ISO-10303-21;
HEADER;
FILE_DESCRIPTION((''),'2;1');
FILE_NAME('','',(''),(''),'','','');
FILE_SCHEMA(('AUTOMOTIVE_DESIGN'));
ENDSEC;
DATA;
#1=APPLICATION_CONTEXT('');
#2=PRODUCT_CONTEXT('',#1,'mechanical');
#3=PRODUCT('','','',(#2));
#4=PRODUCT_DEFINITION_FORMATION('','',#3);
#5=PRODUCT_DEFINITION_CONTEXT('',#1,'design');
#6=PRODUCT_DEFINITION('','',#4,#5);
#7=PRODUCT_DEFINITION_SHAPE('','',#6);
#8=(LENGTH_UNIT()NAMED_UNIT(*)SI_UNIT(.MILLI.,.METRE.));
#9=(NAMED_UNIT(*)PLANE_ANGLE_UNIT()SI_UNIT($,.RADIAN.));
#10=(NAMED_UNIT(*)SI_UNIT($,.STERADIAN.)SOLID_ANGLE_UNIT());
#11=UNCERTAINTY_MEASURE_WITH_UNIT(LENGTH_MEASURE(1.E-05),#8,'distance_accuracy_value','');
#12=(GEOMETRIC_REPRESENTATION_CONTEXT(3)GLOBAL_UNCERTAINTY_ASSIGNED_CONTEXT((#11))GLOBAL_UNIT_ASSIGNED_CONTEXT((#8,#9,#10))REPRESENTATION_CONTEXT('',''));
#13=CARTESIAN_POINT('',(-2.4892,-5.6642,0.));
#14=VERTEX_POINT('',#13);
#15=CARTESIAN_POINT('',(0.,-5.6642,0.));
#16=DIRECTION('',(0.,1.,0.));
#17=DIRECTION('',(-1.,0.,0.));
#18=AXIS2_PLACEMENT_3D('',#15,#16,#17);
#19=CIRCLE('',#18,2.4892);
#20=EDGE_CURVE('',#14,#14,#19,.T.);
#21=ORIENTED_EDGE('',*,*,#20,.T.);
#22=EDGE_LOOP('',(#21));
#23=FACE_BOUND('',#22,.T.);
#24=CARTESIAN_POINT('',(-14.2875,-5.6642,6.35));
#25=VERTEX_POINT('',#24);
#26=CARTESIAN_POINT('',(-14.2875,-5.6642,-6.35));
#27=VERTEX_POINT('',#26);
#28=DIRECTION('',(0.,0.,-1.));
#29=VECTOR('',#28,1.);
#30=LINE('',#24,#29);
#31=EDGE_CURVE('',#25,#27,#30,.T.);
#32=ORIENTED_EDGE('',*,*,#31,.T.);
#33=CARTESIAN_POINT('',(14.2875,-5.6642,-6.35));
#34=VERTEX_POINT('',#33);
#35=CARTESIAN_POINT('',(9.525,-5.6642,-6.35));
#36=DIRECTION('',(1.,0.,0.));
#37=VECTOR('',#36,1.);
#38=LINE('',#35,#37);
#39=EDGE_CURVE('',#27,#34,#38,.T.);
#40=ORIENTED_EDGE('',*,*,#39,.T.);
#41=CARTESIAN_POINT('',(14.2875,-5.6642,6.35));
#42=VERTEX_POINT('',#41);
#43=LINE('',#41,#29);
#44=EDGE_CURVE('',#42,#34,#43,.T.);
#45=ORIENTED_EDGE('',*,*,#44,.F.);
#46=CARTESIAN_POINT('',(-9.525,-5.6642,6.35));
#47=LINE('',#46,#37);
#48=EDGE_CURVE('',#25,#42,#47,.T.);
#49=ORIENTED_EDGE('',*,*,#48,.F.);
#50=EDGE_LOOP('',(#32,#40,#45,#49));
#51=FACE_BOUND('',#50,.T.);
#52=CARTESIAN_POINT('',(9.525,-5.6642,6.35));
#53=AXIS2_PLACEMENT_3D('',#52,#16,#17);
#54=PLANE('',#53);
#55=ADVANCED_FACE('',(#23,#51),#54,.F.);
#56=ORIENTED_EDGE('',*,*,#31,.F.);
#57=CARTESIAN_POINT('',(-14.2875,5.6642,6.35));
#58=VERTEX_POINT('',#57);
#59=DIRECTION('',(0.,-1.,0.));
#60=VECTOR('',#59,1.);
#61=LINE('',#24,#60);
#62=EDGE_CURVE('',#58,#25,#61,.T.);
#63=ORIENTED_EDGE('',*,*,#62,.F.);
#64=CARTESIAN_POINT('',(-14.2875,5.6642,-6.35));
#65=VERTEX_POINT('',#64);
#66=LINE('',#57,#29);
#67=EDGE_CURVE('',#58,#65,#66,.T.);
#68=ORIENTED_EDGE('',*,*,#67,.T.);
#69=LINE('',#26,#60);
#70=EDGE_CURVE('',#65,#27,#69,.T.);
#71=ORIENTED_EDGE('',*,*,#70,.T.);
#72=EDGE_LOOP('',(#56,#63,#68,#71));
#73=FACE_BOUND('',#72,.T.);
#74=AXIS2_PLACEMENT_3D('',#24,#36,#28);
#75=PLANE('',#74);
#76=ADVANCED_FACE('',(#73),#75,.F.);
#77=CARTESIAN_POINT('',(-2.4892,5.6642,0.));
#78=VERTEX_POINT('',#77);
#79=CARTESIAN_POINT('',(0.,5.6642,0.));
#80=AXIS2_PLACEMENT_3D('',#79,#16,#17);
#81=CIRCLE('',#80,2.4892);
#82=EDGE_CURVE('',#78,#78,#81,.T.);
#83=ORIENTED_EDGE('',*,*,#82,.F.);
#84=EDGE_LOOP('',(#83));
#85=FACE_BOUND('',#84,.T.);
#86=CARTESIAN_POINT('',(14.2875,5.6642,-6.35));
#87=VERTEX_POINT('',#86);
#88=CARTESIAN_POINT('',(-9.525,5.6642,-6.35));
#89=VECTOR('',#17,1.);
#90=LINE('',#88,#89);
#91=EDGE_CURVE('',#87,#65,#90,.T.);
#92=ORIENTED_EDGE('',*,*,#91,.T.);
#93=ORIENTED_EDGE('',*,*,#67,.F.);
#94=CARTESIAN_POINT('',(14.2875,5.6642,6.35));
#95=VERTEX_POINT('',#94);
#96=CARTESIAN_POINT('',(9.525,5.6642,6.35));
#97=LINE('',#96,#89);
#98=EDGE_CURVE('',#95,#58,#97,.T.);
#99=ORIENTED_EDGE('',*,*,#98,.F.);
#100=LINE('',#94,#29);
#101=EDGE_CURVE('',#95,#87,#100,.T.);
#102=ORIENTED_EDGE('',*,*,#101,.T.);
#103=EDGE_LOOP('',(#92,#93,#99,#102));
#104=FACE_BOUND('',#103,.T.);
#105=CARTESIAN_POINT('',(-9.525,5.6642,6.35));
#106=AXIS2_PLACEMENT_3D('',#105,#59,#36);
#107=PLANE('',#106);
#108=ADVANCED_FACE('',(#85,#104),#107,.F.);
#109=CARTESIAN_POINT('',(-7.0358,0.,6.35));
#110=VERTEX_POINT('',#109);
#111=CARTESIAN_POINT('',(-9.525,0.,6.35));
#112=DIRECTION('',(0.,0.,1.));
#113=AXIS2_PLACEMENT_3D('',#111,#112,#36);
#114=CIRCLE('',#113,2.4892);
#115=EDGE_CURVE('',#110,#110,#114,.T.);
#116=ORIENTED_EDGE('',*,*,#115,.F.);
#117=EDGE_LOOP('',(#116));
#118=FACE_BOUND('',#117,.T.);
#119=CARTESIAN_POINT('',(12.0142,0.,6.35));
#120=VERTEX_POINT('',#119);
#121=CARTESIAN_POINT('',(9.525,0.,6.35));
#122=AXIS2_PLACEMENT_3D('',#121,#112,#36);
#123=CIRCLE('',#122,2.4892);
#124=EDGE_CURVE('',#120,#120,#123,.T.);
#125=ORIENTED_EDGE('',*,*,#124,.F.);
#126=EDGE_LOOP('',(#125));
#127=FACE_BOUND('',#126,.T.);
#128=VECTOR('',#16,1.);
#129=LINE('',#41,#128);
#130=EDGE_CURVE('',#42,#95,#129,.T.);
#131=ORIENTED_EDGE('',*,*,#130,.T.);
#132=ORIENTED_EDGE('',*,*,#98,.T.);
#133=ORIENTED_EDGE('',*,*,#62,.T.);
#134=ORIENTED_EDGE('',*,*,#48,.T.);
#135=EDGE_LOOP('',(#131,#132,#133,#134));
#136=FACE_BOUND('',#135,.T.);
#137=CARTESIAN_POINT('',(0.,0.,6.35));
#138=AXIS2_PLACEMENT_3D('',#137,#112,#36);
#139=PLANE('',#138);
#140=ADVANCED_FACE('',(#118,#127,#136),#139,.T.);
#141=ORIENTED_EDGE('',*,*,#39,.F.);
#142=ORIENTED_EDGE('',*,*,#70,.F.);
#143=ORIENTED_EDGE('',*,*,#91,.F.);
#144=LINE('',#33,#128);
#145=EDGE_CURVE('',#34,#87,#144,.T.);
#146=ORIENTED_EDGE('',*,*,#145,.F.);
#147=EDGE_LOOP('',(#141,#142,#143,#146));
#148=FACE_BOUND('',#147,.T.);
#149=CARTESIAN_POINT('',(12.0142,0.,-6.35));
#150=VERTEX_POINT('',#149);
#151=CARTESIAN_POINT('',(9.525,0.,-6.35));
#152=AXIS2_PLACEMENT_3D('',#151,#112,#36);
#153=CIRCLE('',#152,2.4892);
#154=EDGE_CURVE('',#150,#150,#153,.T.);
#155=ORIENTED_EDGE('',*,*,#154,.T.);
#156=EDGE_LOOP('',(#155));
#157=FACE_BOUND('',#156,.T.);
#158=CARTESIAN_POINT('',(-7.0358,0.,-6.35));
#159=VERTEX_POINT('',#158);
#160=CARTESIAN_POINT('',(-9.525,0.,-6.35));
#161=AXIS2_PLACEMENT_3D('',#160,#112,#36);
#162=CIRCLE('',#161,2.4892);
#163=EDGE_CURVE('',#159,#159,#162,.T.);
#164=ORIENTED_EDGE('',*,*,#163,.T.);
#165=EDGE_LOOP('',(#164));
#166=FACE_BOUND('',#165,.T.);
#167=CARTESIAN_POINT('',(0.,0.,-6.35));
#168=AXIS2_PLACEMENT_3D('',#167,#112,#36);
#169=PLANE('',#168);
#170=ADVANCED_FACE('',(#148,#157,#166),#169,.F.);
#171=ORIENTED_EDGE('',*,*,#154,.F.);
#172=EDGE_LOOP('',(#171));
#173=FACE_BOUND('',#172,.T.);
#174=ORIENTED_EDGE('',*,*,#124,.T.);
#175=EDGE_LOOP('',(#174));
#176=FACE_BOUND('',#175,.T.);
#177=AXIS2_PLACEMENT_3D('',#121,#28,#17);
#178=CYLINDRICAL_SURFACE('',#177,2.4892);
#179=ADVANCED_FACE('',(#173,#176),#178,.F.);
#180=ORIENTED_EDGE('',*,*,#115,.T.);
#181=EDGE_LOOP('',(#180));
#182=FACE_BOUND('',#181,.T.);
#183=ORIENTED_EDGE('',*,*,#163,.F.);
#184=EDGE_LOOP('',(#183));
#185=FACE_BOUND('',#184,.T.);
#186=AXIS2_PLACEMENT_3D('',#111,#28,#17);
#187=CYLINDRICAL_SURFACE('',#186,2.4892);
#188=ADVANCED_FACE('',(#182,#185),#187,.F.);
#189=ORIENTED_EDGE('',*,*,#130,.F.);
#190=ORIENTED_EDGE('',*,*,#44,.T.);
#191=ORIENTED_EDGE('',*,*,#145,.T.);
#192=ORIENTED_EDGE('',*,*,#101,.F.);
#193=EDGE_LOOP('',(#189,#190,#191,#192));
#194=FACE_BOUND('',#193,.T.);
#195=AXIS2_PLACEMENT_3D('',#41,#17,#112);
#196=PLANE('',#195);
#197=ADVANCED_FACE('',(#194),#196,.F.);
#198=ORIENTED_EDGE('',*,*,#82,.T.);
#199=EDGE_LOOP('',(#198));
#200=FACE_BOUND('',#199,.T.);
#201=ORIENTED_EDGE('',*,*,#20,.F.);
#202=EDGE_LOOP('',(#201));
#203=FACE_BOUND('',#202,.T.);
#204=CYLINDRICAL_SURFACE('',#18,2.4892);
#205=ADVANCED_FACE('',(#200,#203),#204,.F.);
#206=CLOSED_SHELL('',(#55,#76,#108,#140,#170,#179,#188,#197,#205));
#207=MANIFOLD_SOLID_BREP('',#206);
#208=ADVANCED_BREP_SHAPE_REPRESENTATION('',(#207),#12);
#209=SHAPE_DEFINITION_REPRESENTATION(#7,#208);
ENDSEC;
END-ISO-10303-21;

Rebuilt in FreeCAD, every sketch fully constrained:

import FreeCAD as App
import Part
import Sketcher
Q = App.Units.Quantity

doc = App.newDocument("Part")
body = doc.addObject("PartDesign::Body", "Body")

# Sketch on XY plane
sketch1 = body.newObject("Sketcher::SketchObject", "Sketch")
sketch1.AttachmentSupport = (doc.getObject("XY_Plane"), [""])
sketch1.MapMode = "FlatFace"
sketch1.addGeometry([
    Part.LineSegment(App.Vector(14.3, -5.7, 0), App.Vector(14.3, 5.7, 0)),  # 0
    Part.LineSegment(App.Vector(14.3, 5.7, 0), App.Vector(-14.3, 5.7, 0)),  # 1
    Part.LineSegment(App.Vector(-14.3, 5.7, 0), App.Vector(-14.3, -5.7, 0)),  # 2
    Part.LineSegment(App.Vector(-14.3, -5.7, 0), App.Vector(14.3, -5.7, 0)),  # 3
    Part.Circle(App.Vector(-9.5, 0, 0), App.Vector(0, 0, 1), 2.5),  # 4
    Part.Circle(App.Vector(9.5, 0, 0), App.Vector(0, 0, 1), 2.5),  # 5
], False)
sketch1.addConstraint([
    Sketcher.Constraint("Coincident", 0, 2, 1, 1),
    Sketcher.Constraint("Coincident", 1, 2, 2, 1),
    Sketcher.Constraint("Coincident", 2, 2, 3, 1),
    Sketcher.Constraint("Coincident", 3, 2, 0, 1),
    Sketcher.Constraint("Vertical", 0),
    Sketcher.Constraint("Horizontal", 1),
    Sketcher.Constraint("Vertical", 2),
    Sketcher.Constraint("Horizontal", 3),
    Sketcher.Constraint("Equal", 4, 5),
    Sketcher.Constraint("Symmetric", 4, 3, 5, 3, -1, 1),
    Sketcher.Constraint("Symmetric", 0, 2, 2, 2, -1, 1),
    Sketcher.Constraint("PointOnObject", 4, 3, -1),
    Sketcher.Constraint("Diameter", 4, Q("0.196 in")),
    Sketcher.Constraint("DistanceX", 1, 2, 1, 1, Q("1.125 in")),
    Sketcher.Constraint("DistanceY", 0, 1, 0, 2, Q("0.446 in")),
    Sketcher.Constraint("DistanceX", 4, 3, 5, 3, Q("0.75 in")),
])
pad1 = body.newObject("PartDesign::Pad", "Pad")
pad1.Profile = sketch1
pad1.Length = Q("0.5 in")
pad1.Midplane = True

# Sketch on XZ plane
sketch2 = body.newObject("Sketcher::SketchObject", "Sketch001")
sketch2.AttachmentSupport = (doc.getObject("XZ_Plane"), [""])
sketch2.MapMode = "FlatFace"
sketch2.AttachmentOffset = App.Placement(App.Vector(0, 0, -0.223 * 25.4), App.Rotation())
sketch2.addGeometry(Part.Circle(App.Vector(0, 0, 0), App.Vector(0, 0, 1), 2.5), False)
sketch2.addConstraint([
    Sketcher.Constraint("Coincident", 0, 3, -1, 1),
    Sketcher.Constraint("Diameter", 0, Q("0.196 in")),
])
pocket1 = body.newObject("PartDesign::Pocket", "Pocket")
pocket1.Profile = sketch2
pocket1.Type = "ThroughAll"
pocket1.Reversed = True

doc.recompute()
